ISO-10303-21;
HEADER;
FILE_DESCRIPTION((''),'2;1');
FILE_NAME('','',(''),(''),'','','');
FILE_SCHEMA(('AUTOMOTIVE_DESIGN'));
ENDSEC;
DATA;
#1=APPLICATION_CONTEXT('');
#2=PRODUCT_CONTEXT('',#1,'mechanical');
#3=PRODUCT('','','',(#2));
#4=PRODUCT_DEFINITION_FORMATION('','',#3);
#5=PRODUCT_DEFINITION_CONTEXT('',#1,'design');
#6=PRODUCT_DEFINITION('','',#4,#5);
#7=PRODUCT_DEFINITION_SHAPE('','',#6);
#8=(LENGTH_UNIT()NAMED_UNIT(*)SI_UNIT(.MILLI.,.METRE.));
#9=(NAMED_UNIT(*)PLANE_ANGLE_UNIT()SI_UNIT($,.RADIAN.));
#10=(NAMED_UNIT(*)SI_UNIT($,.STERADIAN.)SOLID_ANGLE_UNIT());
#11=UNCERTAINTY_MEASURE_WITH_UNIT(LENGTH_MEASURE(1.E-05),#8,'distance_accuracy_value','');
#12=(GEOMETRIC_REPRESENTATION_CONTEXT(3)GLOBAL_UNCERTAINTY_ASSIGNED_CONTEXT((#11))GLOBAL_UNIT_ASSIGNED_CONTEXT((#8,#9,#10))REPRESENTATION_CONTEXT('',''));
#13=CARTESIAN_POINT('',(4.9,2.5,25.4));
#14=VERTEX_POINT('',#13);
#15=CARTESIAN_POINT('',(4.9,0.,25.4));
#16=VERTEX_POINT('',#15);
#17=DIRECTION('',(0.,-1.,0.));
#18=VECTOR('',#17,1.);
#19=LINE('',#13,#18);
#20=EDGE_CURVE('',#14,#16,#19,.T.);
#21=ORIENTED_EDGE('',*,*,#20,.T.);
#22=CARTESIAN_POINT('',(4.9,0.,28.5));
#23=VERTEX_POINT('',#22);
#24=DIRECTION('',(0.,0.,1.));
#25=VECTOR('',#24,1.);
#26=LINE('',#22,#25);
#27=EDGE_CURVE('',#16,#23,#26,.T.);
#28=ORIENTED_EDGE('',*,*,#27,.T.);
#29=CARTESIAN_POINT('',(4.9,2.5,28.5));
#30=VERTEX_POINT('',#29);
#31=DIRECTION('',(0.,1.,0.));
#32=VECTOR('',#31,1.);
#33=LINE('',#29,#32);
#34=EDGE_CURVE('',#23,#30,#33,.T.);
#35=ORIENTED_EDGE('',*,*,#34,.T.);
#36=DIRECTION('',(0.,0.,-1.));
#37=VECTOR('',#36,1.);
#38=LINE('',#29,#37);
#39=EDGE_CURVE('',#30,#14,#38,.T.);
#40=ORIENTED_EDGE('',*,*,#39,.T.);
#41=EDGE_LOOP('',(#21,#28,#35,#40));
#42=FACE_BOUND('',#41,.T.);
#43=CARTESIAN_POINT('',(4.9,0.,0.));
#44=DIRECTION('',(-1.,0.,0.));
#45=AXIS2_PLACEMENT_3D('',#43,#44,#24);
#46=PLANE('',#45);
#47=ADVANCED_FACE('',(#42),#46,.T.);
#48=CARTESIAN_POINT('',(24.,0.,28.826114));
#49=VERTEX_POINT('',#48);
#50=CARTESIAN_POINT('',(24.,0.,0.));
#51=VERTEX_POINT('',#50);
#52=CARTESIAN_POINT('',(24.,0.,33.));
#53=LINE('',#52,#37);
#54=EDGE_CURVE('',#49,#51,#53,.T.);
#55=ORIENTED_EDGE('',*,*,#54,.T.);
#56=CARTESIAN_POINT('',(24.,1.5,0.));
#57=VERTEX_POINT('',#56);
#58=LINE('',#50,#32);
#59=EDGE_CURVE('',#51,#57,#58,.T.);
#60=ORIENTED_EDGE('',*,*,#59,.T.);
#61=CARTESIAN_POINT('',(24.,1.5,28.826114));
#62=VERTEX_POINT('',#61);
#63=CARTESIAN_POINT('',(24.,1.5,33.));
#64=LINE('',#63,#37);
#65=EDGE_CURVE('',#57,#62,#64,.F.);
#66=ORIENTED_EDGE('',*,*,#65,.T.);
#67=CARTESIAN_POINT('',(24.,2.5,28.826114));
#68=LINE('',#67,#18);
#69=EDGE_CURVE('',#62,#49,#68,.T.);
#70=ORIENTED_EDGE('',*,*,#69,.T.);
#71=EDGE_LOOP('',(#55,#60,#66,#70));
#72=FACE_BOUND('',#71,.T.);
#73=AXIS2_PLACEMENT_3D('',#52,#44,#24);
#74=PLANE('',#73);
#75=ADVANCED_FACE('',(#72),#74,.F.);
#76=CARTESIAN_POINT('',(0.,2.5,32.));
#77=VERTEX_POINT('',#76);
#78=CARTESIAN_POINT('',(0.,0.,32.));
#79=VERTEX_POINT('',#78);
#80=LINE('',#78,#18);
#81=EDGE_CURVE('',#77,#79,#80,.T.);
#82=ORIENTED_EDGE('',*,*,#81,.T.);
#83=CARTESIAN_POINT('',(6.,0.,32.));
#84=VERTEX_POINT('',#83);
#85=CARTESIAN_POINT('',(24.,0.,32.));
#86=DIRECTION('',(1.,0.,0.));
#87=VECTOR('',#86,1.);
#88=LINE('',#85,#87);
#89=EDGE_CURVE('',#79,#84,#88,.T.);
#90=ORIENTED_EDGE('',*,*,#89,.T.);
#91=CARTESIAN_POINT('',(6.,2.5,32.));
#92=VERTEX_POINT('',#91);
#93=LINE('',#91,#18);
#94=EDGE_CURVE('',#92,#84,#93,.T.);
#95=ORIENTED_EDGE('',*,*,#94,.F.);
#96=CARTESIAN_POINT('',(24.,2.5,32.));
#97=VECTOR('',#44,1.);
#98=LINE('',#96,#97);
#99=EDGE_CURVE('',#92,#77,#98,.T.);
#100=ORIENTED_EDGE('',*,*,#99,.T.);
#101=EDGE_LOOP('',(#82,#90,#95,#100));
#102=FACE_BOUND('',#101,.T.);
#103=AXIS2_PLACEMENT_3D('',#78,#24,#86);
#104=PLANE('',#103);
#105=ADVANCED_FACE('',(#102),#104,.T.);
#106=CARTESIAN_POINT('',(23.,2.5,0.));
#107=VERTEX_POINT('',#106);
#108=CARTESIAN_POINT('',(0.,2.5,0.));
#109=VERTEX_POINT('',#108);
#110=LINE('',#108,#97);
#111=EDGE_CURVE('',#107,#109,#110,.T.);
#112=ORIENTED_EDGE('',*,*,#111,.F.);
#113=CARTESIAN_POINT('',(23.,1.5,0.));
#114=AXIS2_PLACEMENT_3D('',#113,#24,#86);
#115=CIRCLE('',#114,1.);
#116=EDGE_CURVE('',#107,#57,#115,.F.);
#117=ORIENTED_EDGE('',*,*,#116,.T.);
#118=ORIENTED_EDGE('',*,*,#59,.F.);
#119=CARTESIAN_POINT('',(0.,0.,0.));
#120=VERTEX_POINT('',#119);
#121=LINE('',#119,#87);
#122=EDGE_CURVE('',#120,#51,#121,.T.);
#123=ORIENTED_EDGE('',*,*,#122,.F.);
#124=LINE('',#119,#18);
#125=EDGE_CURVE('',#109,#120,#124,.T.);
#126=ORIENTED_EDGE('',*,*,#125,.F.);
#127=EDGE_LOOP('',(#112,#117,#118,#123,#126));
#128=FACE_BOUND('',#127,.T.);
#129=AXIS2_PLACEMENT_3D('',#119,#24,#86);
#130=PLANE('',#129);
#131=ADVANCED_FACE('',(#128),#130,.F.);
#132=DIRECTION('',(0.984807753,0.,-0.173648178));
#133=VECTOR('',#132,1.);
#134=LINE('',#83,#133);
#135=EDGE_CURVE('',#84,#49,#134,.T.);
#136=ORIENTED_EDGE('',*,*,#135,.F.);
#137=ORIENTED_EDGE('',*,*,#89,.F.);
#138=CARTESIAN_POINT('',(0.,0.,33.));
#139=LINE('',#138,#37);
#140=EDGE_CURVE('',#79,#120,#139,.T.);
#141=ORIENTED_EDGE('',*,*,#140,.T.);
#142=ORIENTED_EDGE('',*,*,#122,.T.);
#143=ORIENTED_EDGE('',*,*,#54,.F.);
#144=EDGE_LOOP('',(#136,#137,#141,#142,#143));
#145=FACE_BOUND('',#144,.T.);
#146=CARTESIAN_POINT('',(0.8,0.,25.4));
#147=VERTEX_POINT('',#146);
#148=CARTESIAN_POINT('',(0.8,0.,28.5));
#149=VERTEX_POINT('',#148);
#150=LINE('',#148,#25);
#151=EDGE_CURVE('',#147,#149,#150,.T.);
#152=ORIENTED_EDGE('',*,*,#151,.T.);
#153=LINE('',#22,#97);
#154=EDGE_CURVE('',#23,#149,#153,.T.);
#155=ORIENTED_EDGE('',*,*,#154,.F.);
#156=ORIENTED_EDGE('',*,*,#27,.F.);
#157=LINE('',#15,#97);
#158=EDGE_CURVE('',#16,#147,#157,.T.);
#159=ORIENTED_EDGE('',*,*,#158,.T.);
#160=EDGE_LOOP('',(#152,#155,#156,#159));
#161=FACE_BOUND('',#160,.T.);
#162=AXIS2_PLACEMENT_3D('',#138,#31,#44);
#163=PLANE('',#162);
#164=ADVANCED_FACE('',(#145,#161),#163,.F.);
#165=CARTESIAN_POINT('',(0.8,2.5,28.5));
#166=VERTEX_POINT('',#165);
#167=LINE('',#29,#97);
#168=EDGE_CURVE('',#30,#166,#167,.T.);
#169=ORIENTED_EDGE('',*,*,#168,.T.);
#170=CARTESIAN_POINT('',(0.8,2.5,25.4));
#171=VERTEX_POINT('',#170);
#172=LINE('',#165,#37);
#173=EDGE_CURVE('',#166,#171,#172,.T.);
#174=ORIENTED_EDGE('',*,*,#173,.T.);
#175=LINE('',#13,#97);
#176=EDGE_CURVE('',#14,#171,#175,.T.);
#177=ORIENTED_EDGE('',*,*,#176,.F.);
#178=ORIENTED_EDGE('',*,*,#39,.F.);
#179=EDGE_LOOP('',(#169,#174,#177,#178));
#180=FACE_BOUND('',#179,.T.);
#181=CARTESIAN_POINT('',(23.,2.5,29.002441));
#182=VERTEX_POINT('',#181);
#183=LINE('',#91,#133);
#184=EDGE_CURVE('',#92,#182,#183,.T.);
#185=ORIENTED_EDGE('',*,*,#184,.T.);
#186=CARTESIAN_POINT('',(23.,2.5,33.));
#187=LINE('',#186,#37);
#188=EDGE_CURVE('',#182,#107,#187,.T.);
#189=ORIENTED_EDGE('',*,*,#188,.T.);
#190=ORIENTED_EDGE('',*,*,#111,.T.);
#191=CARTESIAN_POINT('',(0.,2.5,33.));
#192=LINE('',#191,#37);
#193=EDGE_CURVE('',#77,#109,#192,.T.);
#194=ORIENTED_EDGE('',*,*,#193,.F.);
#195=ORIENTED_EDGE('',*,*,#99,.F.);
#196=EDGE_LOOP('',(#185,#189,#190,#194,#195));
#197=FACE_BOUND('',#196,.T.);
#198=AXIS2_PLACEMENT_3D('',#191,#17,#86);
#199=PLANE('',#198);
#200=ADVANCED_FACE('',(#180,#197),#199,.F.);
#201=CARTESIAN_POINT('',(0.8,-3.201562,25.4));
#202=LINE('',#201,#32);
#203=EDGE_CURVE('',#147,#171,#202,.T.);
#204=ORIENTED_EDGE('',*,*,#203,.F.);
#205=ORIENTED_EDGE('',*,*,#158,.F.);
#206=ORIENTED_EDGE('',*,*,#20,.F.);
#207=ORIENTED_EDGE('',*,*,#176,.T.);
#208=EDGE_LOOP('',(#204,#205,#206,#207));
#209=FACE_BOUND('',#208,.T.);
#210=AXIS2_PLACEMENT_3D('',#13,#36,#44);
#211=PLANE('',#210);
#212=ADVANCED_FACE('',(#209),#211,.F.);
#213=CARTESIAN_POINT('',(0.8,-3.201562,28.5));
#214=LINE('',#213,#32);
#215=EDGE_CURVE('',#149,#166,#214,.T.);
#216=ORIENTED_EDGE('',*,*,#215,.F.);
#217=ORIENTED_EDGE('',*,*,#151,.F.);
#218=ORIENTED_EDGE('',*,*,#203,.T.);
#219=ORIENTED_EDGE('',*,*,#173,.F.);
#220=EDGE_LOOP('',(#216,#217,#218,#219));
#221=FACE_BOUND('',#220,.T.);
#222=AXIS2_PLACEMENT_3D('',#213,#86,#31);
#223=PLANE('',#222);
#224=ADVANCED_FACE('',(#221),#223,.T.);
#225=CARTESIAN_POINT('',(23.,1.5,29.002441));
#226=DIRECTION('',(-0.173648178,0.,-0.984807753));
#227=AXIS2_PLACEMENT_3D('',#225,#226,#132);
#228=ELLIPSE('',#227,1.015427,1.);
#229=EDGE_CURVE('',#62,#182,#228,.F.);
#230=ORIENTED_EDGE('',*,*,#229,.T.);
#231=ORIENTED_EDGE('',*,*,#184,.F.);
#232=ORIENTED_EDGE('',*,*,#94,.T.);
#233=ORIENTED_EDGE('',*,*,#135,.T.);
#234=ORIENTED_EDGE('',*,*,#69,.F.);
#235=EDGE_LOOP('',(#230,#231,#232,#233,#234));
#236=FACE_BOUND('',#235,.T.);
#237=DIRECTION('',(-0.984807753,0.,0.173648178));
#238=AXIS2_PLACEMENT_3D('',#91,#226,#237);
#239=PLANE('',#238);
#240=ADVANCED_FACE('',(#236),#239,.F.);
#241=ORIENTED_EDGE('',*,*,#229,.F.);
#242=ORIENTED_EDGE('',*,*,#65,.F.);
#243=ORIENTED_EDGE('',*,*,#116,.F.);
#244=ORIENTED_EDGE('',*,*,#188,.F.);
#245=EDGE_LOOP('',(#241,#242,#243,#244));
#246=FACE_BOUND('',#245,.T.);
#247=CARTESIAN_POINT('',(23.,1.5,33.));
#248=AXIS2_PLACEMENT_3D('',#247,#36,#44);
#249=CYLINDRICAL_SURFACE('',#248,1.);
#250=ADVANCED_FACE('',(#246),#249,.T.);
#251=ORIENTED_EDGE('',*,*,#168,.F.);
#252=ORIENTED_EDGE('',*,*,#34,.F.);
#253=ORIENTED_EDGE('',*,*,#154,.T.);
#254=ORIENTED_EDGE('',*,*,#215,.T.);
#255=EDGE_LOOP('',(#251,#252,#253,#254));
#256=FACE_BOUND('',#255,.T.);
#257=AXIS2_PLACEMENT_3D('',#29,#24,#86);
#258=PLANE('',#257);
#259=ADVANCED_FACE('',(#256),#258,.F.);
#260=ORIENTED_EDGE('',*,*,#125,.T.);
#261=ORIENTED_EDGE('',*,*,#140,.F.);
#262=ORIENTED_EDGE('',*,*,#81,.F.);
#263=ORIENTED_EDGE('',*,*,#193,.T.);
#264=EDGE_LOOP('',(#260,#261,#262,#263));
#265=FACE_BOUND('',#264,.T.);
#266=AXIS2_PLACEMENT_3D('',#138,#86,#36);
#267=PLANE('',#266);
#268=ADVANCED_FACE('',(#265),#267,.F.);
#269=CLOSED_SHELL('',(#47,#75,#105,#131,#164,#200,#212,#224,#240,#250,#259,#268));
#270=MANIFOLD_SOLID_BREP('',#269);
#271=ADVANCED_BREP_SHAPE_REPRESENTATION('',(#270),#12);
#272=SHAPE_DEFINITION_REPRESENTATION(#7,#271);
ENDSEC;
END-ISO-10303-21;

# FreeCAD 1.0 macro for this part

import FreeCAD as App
import Part
import Sketcher

V = App.Vector
Q = App.Units.Quantity


def edges_at(feature, points):
    """Names of the edges that pass closest to the given points."""
    edges = feature.Shape.Edges
    near = lambda p: min(range(len(edges)), key=lambda i: edges[i].distToShape(Part.Vertex(*p))[0])
    return sorted({f"Edge{near(p) + 1}" for p in points})

doc = App.newDocument("Part")
body = doc.addObject("PartDesign::Body", "Body")

# Sketch on XY plane
sketch1 = doc.addObject("Sketcher::SketchObject", "Sketch")
body.addObject(sketch1)
sketch1.AttachmentSupport = (doc.XY_Plane, [""])
sketch1.MapMode = "FlatFace"
sketch1.addGeometry(Part.LineSegment(V(0, 0, 0), V(24, 0, 0)), False)
sketch1.addGeometry(Part.LineSegment(V(24, 0, 0), V(24, 2.5, 0)), False)
sketch1.addGeometry(Part.LineSegment(V(24, 2.5, 0), V(0, 2.5, 0)), False)
sketch1.addGeometry(Part.LineSegment(V(0, 2.5, 0), V(0, 0, 0)), False)
sketch1.addConstraint(Sketcher.Constraint("Coincident", 0, 2, 1, 1))
sketch1.addConstraint(Sketcher.Constraint("Coincident", 1, 2, 2, 1))
sketch1.addConstraint(Sketcher.Constraint("Coincident", 2, 2, 3, 1))
sketch1.addConstraint(Sketcher.Constraint("Coincident", 3, 2, 0, 1))
sketch1.addConstraint(Sketcher.Constraint("Horizontal", 0))
sketch1.addConstraint(Sketcher.Constraint("Vertical", 1))
sketch1.addConstraint(Sketcher.Constraint("Horizontal", 2))
sketch1.addConstraint(Sketcher.Constraint("Vertical", 3))
sketch1.addConstraint(Sketcher.Constraint("Coincident", 3, 2, -1, 1))
sketch1.addConstraint(Sketcher.Constraint("DistanceX", 0, 1, 0, 2, 24.0))
sketch1.addConstraint(Sketcher.Constraint("DistanceY", 1, 1, 1, 2, 2.5))
pad1 = doc.addObject("PartDesign::Pad", "Pad")
body.addObject(pad1)
pad1.Profile = sketch1
pad1.Length = 33
doc.recompute()

fillet = doc.addObject("PartDesign::Fillet", "Fillet")
body.addObject(fillet)
fillet.Base = (pad1, edges_at(pad1, [(24, 2.5, 16.5)]))
fillet.Radius = 1

# Sketch on XZ plane
sketch2 = doc.addObject("Sketcher::SketchObject", "Sketch001")
body.addObject(sketch2)
sketch2.AttachmentSupport = (doc.XZ_Plane, [""])
sketch2.MapMode = "FlatFace"
sketch2.addGeometry(Part.LineSegment(V(3, 33, 0), V(24, 31.2, 0)), False)
sketch2.addGeometry(Part.LineSegment(V(24, 31.2, 0), V(24, 33, 0)), False)
sketch2.addGeometry(Part.LineSegment(V(24, 33, 0), V(3, 33, 0)), False)
sketch2.addConstraint(Sketcher.Constraint("Coincident", 0, 2, 1, 1))
sketch2.addConstraint(Sketcher.Constraint("Coincident", 1, 2, 2, 1))
sketch2.addConstraint(Sketcher.Constraint("Coincident", 2, 2, 0, 1))
sketch2.addConstraint(Sketcher.Constraint("Vertical", 1))
sketch2.addConstraint(Sketcher.Constraint("Horizontal", 2))
sketch2.addConstraint(Sketcher.Constraint("DistanceX", 2, 2, 2, 1, 21.0))
sketch2.addConstraint(Sketcher.Constraint("Angle", 0, Q("-5 deg")))
sketch2.addConstraint(Sketcher.Constraint("DistanceX", -1, 1, 0, 2, 24.0))
sketch2.addConstraint(Sketcher.Constraint("DistanceY", -1, 1, 1, 2, 33.0))
pocket1 = doc.addObject("PartDesign::Pocket", "Pocket")
body.addObject(pocket1)
pocket1.Profile = sketch2
pocket1.Type = "ThroughAll"

# Sketch on YZ plane
sketch3 = doc.addObject("Sketcher::SketchObject", "Sketch002")
body.addObject(sketch3)
sketch3.AttachmentSupport = (doc.YZ_Plane, [""])
sketch3.MapMode = "FlatFace"
sketch3.addGeometry(Part.LineSegment(V(2.5, 28.5, 0), V(2.5, 25.4, 0)), False)
sketch3.addGeometry(Part.LineSegment(V(2.5, 25.4, 0), V(0, 25.4, 0)), False)
sketch3.addGeometry(Part.LineSegment(V(0, 25.4, 0), V(0, 28.5, 0)), False)
sketch3.addGeometry(Part.LineSegment(V(0, 28.5, 0), V(2.5, 28.5, 0)), False)
sketch3.addConstraint(Sketcher.Constraint("Coincident", 0, 2, 1, 1))
sketch3.addConstraint(Sketcher.Constraint("Coincident", 1, 2, 2, 1))
sketch3.addConstraint(Sketcher.Constraint("Coincident", 2, 2, 3, 1))
sketch3.addConstraint(Sketcher.Constraint("Coincident", 3, 2, 0, 1))
sketch3.addConstraint(Sketcher.Constraint("Vertical", 0))
sketch3.addConstraint(Sketcher.Constraint("Horizontal", 1))
sketch3.addConstraint(Sketcher.Constraint("Vertical", 2))
sketch3.addConstraint(Sketcher.Constraint("Horizontal", 3))
sketch3.addConstraint(Sketcher.Constraint("PointOnObject", 1, 2, -2))
sketch3.addConstraint(Sketcher.Constraint("DistanceX", 1, 2, 1, 1, 2.5))
sketch3.addConstraint(Sketcher.Constraint("DistanceY", 0, 2, 0, 1, 3.1))
sketch3.addConstraint(Sketcher.Constraint("DistanceY", -1, 1, 0, 2, 25.4))
pocket2 = doc.addObject("PartDesign::Pocket", "Pocket001")
body.addObject(pocket2)
pocket2.Profile = sketch3
pocket2.Length = 4.9
pocket2.Reversed = True

# Sketch on XY plane
sketch4 = doc.addObject("Sketcher::SketchObject", "Sketch003")
body.addObject(sketch4)
sketch4.AttachmentSupport = (doc.XY_Plane, [""])
sketch4.MapMode = "FlatFace"
sketch4.AttachmentOffset = App.Placement(V(0, 0, 33), App.Rotation())
sketch4.addGeometry(Part.LineSegment(V(0, 2.5, 0), V(0, 0, 0)), False)
sketch4.addGeometry(Part.LineSegment(V(0, 0, 0), V(24, 0, 0)), False)
sketch4.addGeometry(Part.LineSegment(V(24, 0, 0), V(24, 2.5, 0)), False)
sketch4.addGeometry(Part.LineSegment(V(24, 2.5, 0), V(0, 2.5, 0)), False)
sketch4.addConstraint(Sketcher.Constraint("Coincident", 0, 2, 1, 1))
sketch4.addConstraint(Sketcher.Constraint("Coincident", 1, 2, 2, 1))
sketch4.addConstraint(Sketcher.Constraint("Coincident", 2, 2, 3, 1))
sketch4.addConstraint(Sketcher.Constraint("Coincident", 3, 2, 0, 1))
sketch4.addConstraint(Sketcher.Constraint("Vertical", 0))
sketch4.addConstraint(Sketcher.Constraint("Horizontal", 1))
sketch4.addConstraint(Sketcher.Constraint("Vertical", 2))
sketch4.addConstraint(Sketcher.Constraint("Horizontal", 3))
sketch4.addConstraint(Sketcher.Constraint("Coincident", 0, 2, -1, 1))
sketch4.addConstraint(Sketcher.Constraint("DistanceX", 1, 1, 1, 2, 24.0))
sketch4.addConstraint(Sketcher.Constraint("DistanceY", 0, 2, 0, 1, 2.5))
pocket3 = doc.addObject("PartDesign::Pocket", "Pocket002")
body.addObject(pocket3)
pocket3.Profile = sketch4
pocket3.Length = 1

# Sketch on XZ plane
sketch5 = doc.addObject("Sketcher::SketchObject", "Sketch004")
body.addObject(sketch5)
sketch5.AttachmentSupport = (doc.XZ_Plane, [""])
sketch5.MapMode = "FlatFace"
sketch5.addGeometry(Part.LineSegment(V(24, 28.8, 0), V(24, 31.2, 0)), False)
sketch5.addGeometry(Part.LineSegment(V(24, 31.2, 0), V(14.4, 32, 0)), False)
sketch5.addGeometry(Part.LineSegment(V(14.4, 32, 0), V(6, 32, 0)), False)
sketch5.addGeometry(Part.LineSegment(V(6, 32, 0), V(24, 28.8, 0)), False)
sketch5.addConstraint(Sketcher.Constraint("Coincident", 0, 2, 1, 1))
sketch5.addConstraint(Sketcher.Constraint("Coincident", 1, 2, 2, 1))
sketch5.addConstraint(Sketcher.Constraint("Coincident", 2, 2, 3, 1))
sketch5.addConstraint(Sketcher.Constraint("Coincident", 3, 2, 0, 1))
sketch5.addConstraint(Sketcher.Constraint("Vertical", 0))
sketch5.addConstraint(Sketcher.Constraint("Horizontal", 2))
sketch5.addConstraint(Sketcher.Constraint("Angle", 1, Q("175 deg")))
sketch5.addConstraint(Sketcher.Constraint("Angle", 3, Q("-10 deg")))
sketch5.addConstraint(Sketcher.Constraint("DistanceX", -1, 1, 0, 2, 24.0))
sketch5.addConstraint(Sketcher.Constraint("DistanceY", -1, 1, 1, 2, 32.0))
sketch5.addConstraint(Sketcher.Constraint("DistanceX", -1, 1, 2, 2, 6.0))
sketch5.addConstraint(Sketcher.Constraint("DistanceX", 2, 2, 2, 1, 8.430052))
pocket4 = doc.addObject("PartDesign::Pocket", "Pocket003")
body.addObject(pocket4)
pocket4.Profile = sketch5
pocket4.Type = "ThroughAll"

# Sketch on XZ plane
sketch6 = doc.addObject("Sketcher::SketchObject", "Sketch005")
body.addObject(sketch6)
sketch6.AttachmentSupport = (doc.XZ_Plane, [""])
sketch6.MapMode = "FlatFace"
sketch6.AttachmentOffset = App.Placement(V(0, 0, -2.5), App.Rotation())
sketch6.addGeometry(Part.LineSegment(V(0.8, 28.5, 0), V(0.8, 25.4, 0)), False)
sketch6.addGeometry(Part.LineSegment(V(0.8, 25.4, 0), V(0, 25.4, 0)), False)
sketch6.addGeometry(Part.LineSegment(V(0, 25.4, 0), V(0, 28.5, 0)), False)
sketch6.addGeometry(Part.LineSegment(V(0, 28.5, 0), V(0.8, 28.5, 0)), False)
sketch6.addConstraint(Sketcher.Constraint("Coincident", 0, 2, 1, 1))
sketch6.addConstraint(Sketcher.Constraint("Coincident", 1, 2, 2, 1))
sketch6.addConstraint(Sketcher.Constraint("Coincident", 2, 2, 3, 1))
sketch6.addConstraint(Sketcher.Constraint("Coincident", 3, 2, 0, 1))
sketch6.addConstraint(Sketcher.Constraint("Vertical", 0))
sketch6.addConstraint(Sketcher.Constraint("Horizontal", 1))
sketch6.addConstraint(Sketcher.Constraint("Vertical", 2))
sketch6.addConstraint(Sketcher.Constraint("Horizontal", 3))
sketch6.addConstraint(Sketcher.Constraint("PointOnObject", 1, 2, -2))
sketch6.addConstraint(Sketcher.Constraint("DistanceX", 1, 2, 1, 1, 0.8))
sketch6.addConstraint(Sketcher.Constraint("DistanceY", 0, 2, 0, 1, 3.1))
sketch6.addConstraint(Sketcher.Constraint("DistanceY", -1, 1, 0, 2, 25.4))
pad2 = doc.addObject("PartDesign::Pad", "Pad001")
body.addObject(pad2)
pad2.Profile = sketch6
pad2.Length = 2.5

doc.recompute()
